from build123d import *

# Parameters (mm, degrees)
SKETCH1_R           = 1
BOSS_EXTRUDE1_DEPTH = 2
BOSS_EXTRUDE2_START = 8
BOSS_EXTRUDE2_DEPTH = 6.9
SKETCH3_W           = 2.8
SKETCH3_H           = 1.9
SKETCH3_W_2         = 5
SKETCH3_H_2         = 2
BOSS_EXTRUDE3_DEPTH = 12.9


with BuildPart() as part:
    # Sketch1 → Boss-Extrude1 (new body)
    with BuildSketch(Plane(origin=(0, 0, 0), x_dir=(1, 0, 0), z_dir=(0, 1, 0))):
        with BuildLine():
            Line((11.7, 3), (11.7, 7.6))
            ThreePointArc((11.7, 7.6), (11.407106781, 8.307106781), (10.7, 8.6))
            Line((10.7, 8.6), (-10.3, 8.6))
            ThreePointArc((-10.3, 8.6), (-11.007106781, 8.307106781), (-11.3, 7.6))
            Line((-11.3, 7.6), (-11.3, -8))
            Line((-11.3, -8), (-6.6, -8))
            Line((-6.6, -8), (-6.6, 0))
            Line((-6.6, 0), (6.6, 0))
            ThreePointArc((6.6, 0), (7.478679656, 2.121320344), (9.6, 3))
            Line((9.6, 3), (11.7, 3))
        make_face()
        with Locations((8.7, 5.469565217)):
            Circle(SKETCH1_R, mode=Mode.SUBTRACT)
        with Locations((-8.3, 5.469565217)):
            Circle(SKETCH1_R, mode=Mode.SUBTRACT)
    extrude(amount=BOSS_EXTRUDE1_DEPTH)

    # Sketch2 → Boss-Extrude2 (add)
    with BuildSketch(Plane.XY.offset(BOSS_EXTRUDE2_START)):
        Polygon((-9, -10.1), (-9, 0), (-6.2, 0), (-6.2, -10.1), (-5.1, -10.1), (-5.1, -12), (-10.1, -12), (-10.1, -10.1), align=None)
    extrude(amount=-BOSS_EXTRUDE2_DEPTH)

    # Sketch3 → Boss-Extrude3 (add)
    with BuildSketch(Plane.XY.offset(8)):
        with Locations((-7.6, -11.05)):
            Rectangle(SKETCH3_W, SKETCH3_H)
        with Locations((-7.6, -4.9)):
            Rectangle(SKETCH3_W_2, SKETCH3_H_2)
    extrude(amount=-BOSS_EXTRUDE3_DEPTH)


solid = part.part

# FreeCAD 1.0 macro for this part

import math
import FreeCAD as App
import Part
import Sketcher

V = App.Vector


def add_polygon(sketch, points):
    """Adds a closed chain of lines whose ends are joined by coincident constraints."""
    first, n = sketch.GeometryCount, len(points)
    for a, b in zip(points, points[1:] + points[:1]):
        sketch.addGeometry(Part.LineSegment(App.Vector(*a, 0), App.Vector(*b, 0)), False)
    for i in range(n):
        sketch.addConstraint(Sketcher.Constraint("Coincident", first + i, 2, first + (i + 1) % n, 1))

doc = App.newDocument("Part")
body = doc.addObject("PartDesign::Body", "Body")

# Sketch on XZ plane
sketch1 = doc.addObject("Sketcher::SketchObject", "Sketch")
body.addObject(sketch1)
sketch1.AttachmentSupport = (doc.XZ_Plane, [""])
sketch1.MapMode = "FlatFace"
sketch1.addGeometry([
    Part.LineSegment(V(11.7, -3, 0), V(11.7, -7.6, 0)),  # 0
    Part.ArcOfCircle(Part.Circle(V(10.7, -7.6, 0), V(0, 0, 1), 1), math.radians(-90), math.radians(0)),  # 1
    Part.LineSegment(V(10.7, -8.6, 0), V(-10.3, -8.6, 0)),  # 2
    Part.ArcOfCircle(Part.Circle(V(-10.3, -7.6, 0), V(0, 0, 1), 1), math.radians(-180), math.radians(-90)),  # 3
    Part.LineSegment(V(-11.3, -7.6, 0), V(-11.3, 8, 0)),  # 4
    Part.LineSegment(V(-11.3, 8, 0), V(-6.6, 8, 0)),  # 5
    Part.LineSegment(V(-6.6, 8, 0), V(-6.6, 0, 0)),  # 6
    Part.LineSegment(V(-6.6, 0, 0), V(6.6, 0, 0)),  # 7
    Part.ArcOfCircle(Part.Circle(V(9.6, 0, 0), V(0, 0, 1), 3), math.radians(180), math.radians(270)),  # 8
    Part.LineSegment(V(9.6, -3, 0), V(11.7, -3, 0)),  # 9
    Part.Circle(V(-8.3, -5.469565, 0), V(0, 0, 1), 1),  # 10
    Part.Circle(V(8.7, -5.469565, 0), V(0, 0, 1), 1),  # 11
], False)
sketch1.addConstraint([
    Sketcher.Constraint("Tangent", 0, 2, 1, 2),
    Sketcher.Constraint("Tangent", 1, 1, 2, 1),
    Sketcher.Constraint("Tangent", 2, 2, 3, 2),
    Sketcher.Constraint("Tangent", 3, 1, 4, 1),
    Sketcher.Constraint("Coincident", 4, 2, 5, 1),
    Sketcher.Constraint("Coincident", 5, 2, 6, 1),
    Sketcher.Constraint("Coincident", 6, 2, 7, 1),
    Sketcher.Constraint("Coincident", 7, 2, 8, 1),
    Sketcher.Constraint("Tangent", 8, 2, 9, 1),
    Sketcher.Constraint("Coincident", 9, 2, 0, 1),
    Sketcher.Constraint("Vertical", 0),
    Sketcher.Constraint("Horizontal", 2),
    Sketcher.Constraint("Vertical", 4),
    Sketcher.Constraint("Horizontal", 5),
    Sketcher.Constraint("Vertical", 6),
    Sketcher.Constraint("Horizontal", 7),
    Sketcher.Constraint("Horizontal", 9),
    Sketcher.Constraint("Equal", 1, 3),
    Sketcher.Constraint("Equal", 3, 10),
    Sketcher.Constraint("Equal", 10, 11),
    Sketcher.Constraint("Symmetric", 6, 2, 7, 2, -1, 1),
    Sketcher.Constraint("PointOnObject", 8, 3, -1),
    Sketcher.Constraint("Horizontal", 10, 3, 11, 3),
    Sketcher.Constraint("Diameter", 10, 2.0),
    Sketcher.Constraint("Radius", 8, 3.0),
    Sketcher.Constraint("DistanceX", 2, 2, 2, 1, 21.0),
    Sketcher.Constraint("DistanceY", 6, 2, 6, 1, 8.0),
    Sketcher.Constraint("DistanceX", 5, 1, 5, 2, 4.7),
    Sketcher.Constraint("DistanceX", 7, 1, 7, 2, 13.2),
    Sketcher.Constraint("DistanceY", 0, 2, 0, 1, 4.6),
    Sketcher.Constraint("DistanceX", 3, 3, 10, 3, 2.0),
    Sketcher.Constraint("DistanceX", 11, 3, 1, 3, 2.0),
    Sketcher.Constraint("DistanceY", 10, 3, -1, 1, 5.469565),
])
pad1 = doc.addObject("PartDesign::Pad", "Pad")
body.addObject(pad1)
pad1.Profile = sketch1
pad1.Length = 2
pad1.Reversed = True

# Sketch on XY plane
sketch2 = doc.addObject("Sketcher::SketchObject", "Sketch001")
body.addObject(sketch2)
sketch2.AttachmentSupport = (doc.XY_Plane, [""])
sketch2.MapMode = "FlatFace"
sketch2.AttachmentOffset = App.Placement(V(0, 0, 8), App.Rotation())
add_polygon(sketch2, [(-9, 0), (-9, -10.1), (-10.1, -10.1), (-10.1, -12), (-5.1, -12), (-5.1, -10.1), (-6.2, -10.1), (-6.2, 0)])  # lines 0-7
sketch2.addConstraint([
    Sketcher.Constraint("Vertical", 0),
    Sketcher.Constraint("Horizontal", 1),
    Sketcher.Constraint("Vertical", 2),
    Sketcher.Constraint("Horizontal", 3),
    Sketcher.Constraint("Vertical", 4),
    Sketcher.Constraint("Horizontal", 5),
    Sketcher.Constraint("Vertical", 6),
    Sketcher.Constraint("Horizontal", 7),
    Sketcher.Constraint("PointOnObject", 6, 2, -1),
    Sketcher.Constraint("Horizontal", 1, 2, 4, 2),
    Sketcher.Constraint("Equal", 1, 5),
    Sketcher.Constraint("DistanceX", 3, 1, 3, 2, 5.0),
    Sketcher.Constraint("DistanceX", 1, 2, 1, 1, 1.1),
    Sketcher.Constraint("DistanceY", 0, 2, 0, 1, 10.1),
    Sketcher.Constraint("DistanceY", 2, 2, 2, 1, 1.9),
    Sketcher.Constraint("DistanceX", 0, 2, -1, 1, 9.0),
])
pad2 = doc.addObject("PartDesign::Pad", "Pad001")
body.addObject(pad2)
pad2.Profile = sketch2
pad2.Length = 6.9
pad2.Reversed = True

# Sketch on XY plane
sketch3 = doc.addObject("Sketcher::SketchObject", "Sketch002")
body.addObject(sketch3)
sketch3.AttachmentSupport = (doc.XY_Plane, [""])
sketch3.MapMode = "FlatFace"
sketch3.AttachmentOffset = App.Placement(V(0, 0, 8), App.Rotation())
add_polygon(sketch3, [(-9, -10.1), (-9, -12), (-6.2, -12), (-6.2, -10.1)])  # lines 0-3
add_polygon(sketch3, [(-10.1, -3.9), (-10.1, -5.9), (-5.1, -5.9), (-5.1, -3.9)])  # lines 4-7
sketch3.addConstraint([
    Sketcher.Constraint("Vertical", 0),
    Sketcher.Constraint("Horizontal", 1),
    Sketcher.Constraint("Vertical", 2),
    Sketcher.Constraint("Horizontal", 3),
    Sketcher.Constraint("Vertical", 4),
    Sketcher.Constraint("Horizontal", 5),
    Sketcher.Constraint("Vertical", 6),
    Sketcher.Constraint("Horizontal", 7),
    Sketcher.Constraint("DistanceX", 5, 1, 5, 2, 5.0),
    Sketcher.Constraint("DistanceY", 4, 2, 4, 1, 2.0),
    Sketcher.Constraint("DistanceX", 1, 1, 1, 2, 2.8),
    Sketcher.Constraint("DistanceY", 0, 2, 0, 1, 1.9),
    Sketcher.Constraint("DistanceX", 0, 2, -1, 1, 9.0),
    Sketcher.Constraint("DistanceY", 0, 2, -1, 1, 12.0),
    Sketcher.Constraint("DistanceX", 4, 2, -1, 1, 10.1),
    Sketcher.Constraint("DistanceY", 4, 2, -1, 1, 5.9),
])
pad3 = doc.addObject("PartDesign::Pad", "Pad002")
body.addObject(pad3)
pad3.Profile = sketch3
pad3.Length = 12.9
pad3.Reversed = True

doc.recompute()
